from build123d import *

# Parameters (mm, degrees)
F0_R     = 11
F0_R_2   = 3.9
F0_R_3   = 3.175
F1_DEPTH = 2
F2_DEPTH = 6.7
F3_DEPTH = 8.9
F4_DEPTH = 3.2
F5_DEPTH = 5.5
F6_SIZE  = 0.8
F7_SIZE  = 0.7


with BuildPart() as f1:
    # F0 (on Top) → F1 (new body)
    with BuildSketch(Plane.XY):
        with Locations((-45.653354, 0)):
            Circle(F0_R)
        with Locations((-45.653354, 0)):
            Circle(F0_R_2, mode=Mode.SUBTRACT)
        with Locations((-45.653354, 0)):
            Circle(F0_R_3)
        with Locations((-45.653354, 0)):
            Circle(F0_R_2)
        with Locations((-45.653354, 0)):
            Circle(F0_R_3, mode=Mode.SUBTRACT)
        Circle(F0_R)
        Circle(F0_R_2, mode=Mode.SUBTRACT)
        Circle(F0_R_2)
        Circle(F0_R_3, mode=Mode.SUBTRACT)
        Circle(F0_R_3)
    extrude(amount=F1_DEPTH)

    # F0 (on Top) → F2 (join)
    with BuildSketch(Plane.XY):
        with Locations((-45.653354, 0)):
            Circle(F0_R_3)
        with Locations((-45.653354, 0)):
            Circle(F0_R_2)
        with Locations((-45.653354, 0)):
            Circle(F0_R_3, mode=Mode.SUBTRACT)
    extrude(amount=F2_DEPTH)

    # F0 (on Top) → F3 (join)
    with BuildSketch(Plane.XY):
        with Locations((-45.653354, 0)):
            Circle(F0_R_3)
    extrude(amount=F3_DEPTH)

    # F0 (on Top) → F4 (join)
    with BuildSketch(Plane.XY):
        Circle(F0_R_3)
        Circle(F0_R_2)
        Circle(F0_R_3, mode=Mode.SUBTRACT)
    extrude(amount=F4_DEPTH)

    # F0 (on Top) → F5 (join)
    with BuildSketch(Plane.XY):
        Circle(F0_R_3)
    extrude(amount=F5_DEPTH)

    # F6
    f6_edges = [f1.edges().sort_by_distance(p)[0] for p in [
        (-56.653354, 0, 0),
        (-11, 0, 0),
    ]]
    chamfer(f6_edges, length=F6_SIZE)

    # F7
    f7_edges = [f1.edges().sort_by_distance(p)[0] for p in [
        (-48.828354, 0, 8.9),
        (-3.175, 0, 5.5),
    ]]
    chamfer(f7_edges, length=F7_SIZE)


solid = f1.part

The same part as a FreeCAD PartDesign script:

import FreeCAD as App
import Part
import Sketcher
Q = App.Units.Quantity


def edges_at(feature, points):
    """Names of the edges that pass closest to the given points."""
    edges = feature.Shape.Edges
    near = lambda p: min(range(len(edges)), key=lambda i: edges[i].distToShape(Part.Vertex(*p))[0])
    return sorted({f"Edge{near(p) + 1}" for p in points})

doc = App.newDocument("Part")
body = doc.addObject("PartDesign::Body", "Body")
body.AllowCompound = True

sketch1 = body.newObject("Sketcher::SketchObject", "Sketch")
sketch1.AttachmentSupport = (doc.getObject("XY_Plane"), [""])
sketch1.MapMode = "FlatFace"
sketch1.addGeometry([
    Part.Circle(App.Vector(-45.7, 0, 0), App.Vector(0, 0, 1), 11),
    Part.Circle(App.Vector(-45.7, 0, 0), App.Vector(0, 0, 1), 3.2),
    Part.Circle(App.Vector(0, 0, 0), App.Vector(0, 0, 1), 11),
], False)
sketch1.addConstraint([
    Sketcher.Constraint("Coincident", 2, 3, -1, 1),
    Sketcher.Constraint("Coincident", 1, 3, 0, 3),
    Sketcher.Constraint("Equal", 0, 2),
    Sketcher.Constraint("PointOnObject", 0, 3, -1),
    Sketcher.Constraint("Diameter", 0, Q("22 mm")),
    Sketcher.Constraint("Diameter", 1, Q("6.35 mm")),
    Sketcher.Constraint("DistanceX", 0, 3, -1, 1, Q("45.653354 mm")),
])
pad1 = body.newObject("PartDesign::Pad", "Pad")
pad1.Profile = sketch1
pad1.Length = 2

sketch2 = body.newObject("Sketcher::SketchObject", "Sketch001")
sketch2.AttachmentSupport = (doc.getObject("XY_Plane"), [""])
sketch2.MapMode = "FlatFace"
sketch2.addGeometry([
    Part.Circle(App.Vector(-45.7, 0, 0), App.Vector(0, 0, 1), 3.9),
    Part.Circle(App.Vector(-45.7, 0, 0), App.Vector(0, 0, 1), 3.2),
], False)
sketch2.addConstraint([
    Sketcher.Constraint("Coincident", 1, 3, 0, 3),
    Sketcher.Constraint("PointOnObject", 0, 3, -1),
    Sketcher.Constraint("Diameter", 0, Q("7.8 mm")),
    Sketcher.Constraint("Diameter", 1, Q("6.35 mm")),
    Sketcher.Constraint("DistanceX", 0, 3, -1, 1, Q("45.653354 mm")),
])
pad2 = body.newObject("PartDesign::Pad", "Pad001")
pad2.Profile = sketch2
pad2.Length = 6.7

sketch3 = body.newObject("Sketcher::SketchObject", "Sketch002")
sketch3.AttachmentSupport = (doc.getObject("XY_Plane"), [""])
sketch3.MapMode = "FlatFace"
sketch3.addGeometry(Part.Circle(App.Vector(-45.7, 0, 0), App.Vector(0, 0, 1), 3.2), False)
sketch3.addConstraint([
    Sketcher.Constraint("PointOnObject", 0, 3, -1),
    Sketcher.Constraint("Diameter", 0, Q("6.35 mm")),
    Sketcher.Constraint("DistanceX", 0, 3, -1, 1, Q("45.653354 mm")),
])
pad3 = body.newObject("PartDesign::Pad", "Pad002")
pad3.Profile = sketch3
pad3.Length = 8.9

sketch4 = body.newObject("Sketcher::SketchObject", "Sketch003")
sketch4.AttachmentSupport = (doc.getObject("XY_Plane"), [""])
sketch4.MapMode = "FlatFace"
sketch4.addGeometry([
    Part.Circle(App.Vector(0, 0, 0), App.Vector(0, 0, 1), 3.9),
    Part.Circle(App.Vector(0, 0, 0), App.Vector(0, 0, 1), 3.2),
], False)
sketch4.addConstraint([
    Sketcher.Constraint("Coincident", 0, 3, -1, 1),
    Sketcher.Constraint("Coincident", 1, 3, -1, 1),
    Sketcher.Constraint("Diameter", 0, Q("7.8 mm")),
    Sketcher.Constraint("Diameter", 1, Q("6.35 mm")),
])
pad4 = body.newObject("PartDesign::Pad", "Pad003")
pad4.Profile = sketch4
pad4.Length = 3.2

sketch5 = body.newObject("Sketcher::SketchObject", "Sketch004")
sketch5.AttachmentSupport = (doc.getObject("XY_Plane"), [""])
sketch5.MapMode = "FlatFace"
sketch5.addGeometry(Part.Circle(App.Vector(0, 0, 0), App.Vector(0, 0, 1), 3.2), False)
sketch5.addConstraint([
    Sketcher.Constraint("Coincident", 0, 3, -1, 1),
    Sketcher.Constraint("Diameter", 0, Q("6.35 mm")),
])
pad5 = body.newObject("PartDesign::Pad", "Pad004")
pad5.Profile = sketch5
pad5.Length = 5.5
doc.recompute()

chamfer = body.newObject("PartDesign::Chamfer", "Chamfer")
chamfer.Base = (pad5, edges_at(pad5, [(-56.653, 0, 0), (-11, 0, 0)]))
chamfer.Size = 0.8
doc.recompute()

chamfer2 = body.newObject("PartDesign::Chamfer", "Chamfer001")
chamfer2.Base = (chamfer, edges_at(chamfer, [(-48.828, 0, 8.9), (-3.175, 0, 5.5)]))
chamfer2.Size = 0.7

doc.recompute()
